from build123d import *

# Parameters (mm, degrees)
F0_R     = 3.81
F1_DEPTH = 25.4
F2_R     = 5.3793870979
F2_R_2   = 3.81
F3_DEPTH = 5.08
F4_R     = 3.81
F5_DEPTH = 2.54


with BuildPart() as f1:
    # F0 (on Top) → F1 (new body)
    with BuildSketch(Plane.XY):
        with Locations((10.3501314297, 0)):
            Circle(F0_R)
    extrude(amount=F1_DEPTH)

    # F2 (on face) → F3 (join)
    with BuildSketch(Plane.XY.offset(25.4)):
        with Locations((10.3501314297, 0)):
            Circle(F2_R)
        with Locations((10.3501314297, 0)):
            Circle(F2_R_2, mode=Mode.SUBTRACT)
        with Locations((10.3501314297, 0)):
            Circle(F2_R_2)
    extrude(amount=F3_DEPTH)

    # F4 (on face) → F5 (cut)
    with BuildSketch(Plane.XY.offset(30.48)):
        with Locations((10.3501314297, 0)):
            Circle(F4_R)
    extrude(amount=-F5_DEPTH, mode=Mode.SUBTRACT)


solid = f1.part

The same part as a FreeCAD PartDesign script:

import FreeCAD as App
import Part
import Sketcher
Q = App.Units.Quantity

doc = App.newDocument("Part")
body = doc.addObject("PartDesign::Body", "Body")

sketch1 = body.newObject("Sketcher::SketchObject", "Sketch")
sketch1.AttachmentSupport = (doc.getObject("XY_Plane"), [""])
sketch1.MapMode = "FlatFace"
sketch1.addGeometry(Part.Circle(App.Vector(10.4, 0, 0), App.Vector(0, 0, 1), 3.8), False)
sketch1.addConstraint(Sketcher.Constraint("PointOnObject", 0, 3, -1))
sketch1.addConstraint(Sketcher.Constraint("Diameter", 0, Q("0.3 in")))
sketch1.addConstraint(Sketcher.Constraint("DistanceX", -1, 1, 0, 3, 10.350131))
pad1 = body.newObject("PartDesign::Pad", "Pad")
pad1.Profile = sketch1
pad1.Length = Q("1 in")

sketch2 = body.newObject("Sketcher::SketchObject", "Sketch001")
sketch2.AttachmentSupport = (doc.getObject("XY_Plane"), [""])
sketch2.MapMode = "FlatFace"
sketch2.AttachmentOffset = App.Placement(App.Vector(0, 0, 1 * 25.4), App.Rotation())
sketch2.addGeometry(Part.Circle(App.Vector(10, 0, 0), App.Vector(0, 0, 1), 5), False)
sketch2.addConstraint(Sketcher.Constraint("PointOnObject", 0, 3, -1))
sketch2.addConstraint(Sketcher.Constraint("Diameter", 0, 10.758774))
sketch2.addConstraint(Sketcher.Constraint("DistanceX", -1, 1, 0, 3, 10.350131))
pad2 = body.newObject("PartDesign::Pad", "Pad001")
pad2.Profile = sketch2
pad2.Length = Q("0.2 in")

sketch3 = body.newObject("Sketcher::SketchObject", "Sketch002")
sketch3.AttachmentSupport = (doc.getObject("XY_Plane"), [""])
sketch3.MapMode = "FlatFace"
sketch3.AttachmentOffset = App.Placement(App.Vector(0, 0, 1.2 * 25.4), App.Rotation())
sketch3.addGeometry(Part.Circle(App.Vector(10.4, 0, 0), App.Vector(0, 0, 1), 3.8), False)
sketch3.addConstraint(Sketcher.Constraint("PointOnObject", 0, 3, -1))
sketch3.addConstraint(Sketcher.Constraint("Diameter", 0, Q("0.3 in")))
sketch3.addConstraint(Sketcher.Constraint("DistanceX", -1, 1, 0, 3, 10.350131))
pocket1 = body.newObject("PartDesign::Pocket", "Pocket")
pocket1.Profile = sketch3
pocket1.Length = Q("0.1 in")

doc.recompute()
